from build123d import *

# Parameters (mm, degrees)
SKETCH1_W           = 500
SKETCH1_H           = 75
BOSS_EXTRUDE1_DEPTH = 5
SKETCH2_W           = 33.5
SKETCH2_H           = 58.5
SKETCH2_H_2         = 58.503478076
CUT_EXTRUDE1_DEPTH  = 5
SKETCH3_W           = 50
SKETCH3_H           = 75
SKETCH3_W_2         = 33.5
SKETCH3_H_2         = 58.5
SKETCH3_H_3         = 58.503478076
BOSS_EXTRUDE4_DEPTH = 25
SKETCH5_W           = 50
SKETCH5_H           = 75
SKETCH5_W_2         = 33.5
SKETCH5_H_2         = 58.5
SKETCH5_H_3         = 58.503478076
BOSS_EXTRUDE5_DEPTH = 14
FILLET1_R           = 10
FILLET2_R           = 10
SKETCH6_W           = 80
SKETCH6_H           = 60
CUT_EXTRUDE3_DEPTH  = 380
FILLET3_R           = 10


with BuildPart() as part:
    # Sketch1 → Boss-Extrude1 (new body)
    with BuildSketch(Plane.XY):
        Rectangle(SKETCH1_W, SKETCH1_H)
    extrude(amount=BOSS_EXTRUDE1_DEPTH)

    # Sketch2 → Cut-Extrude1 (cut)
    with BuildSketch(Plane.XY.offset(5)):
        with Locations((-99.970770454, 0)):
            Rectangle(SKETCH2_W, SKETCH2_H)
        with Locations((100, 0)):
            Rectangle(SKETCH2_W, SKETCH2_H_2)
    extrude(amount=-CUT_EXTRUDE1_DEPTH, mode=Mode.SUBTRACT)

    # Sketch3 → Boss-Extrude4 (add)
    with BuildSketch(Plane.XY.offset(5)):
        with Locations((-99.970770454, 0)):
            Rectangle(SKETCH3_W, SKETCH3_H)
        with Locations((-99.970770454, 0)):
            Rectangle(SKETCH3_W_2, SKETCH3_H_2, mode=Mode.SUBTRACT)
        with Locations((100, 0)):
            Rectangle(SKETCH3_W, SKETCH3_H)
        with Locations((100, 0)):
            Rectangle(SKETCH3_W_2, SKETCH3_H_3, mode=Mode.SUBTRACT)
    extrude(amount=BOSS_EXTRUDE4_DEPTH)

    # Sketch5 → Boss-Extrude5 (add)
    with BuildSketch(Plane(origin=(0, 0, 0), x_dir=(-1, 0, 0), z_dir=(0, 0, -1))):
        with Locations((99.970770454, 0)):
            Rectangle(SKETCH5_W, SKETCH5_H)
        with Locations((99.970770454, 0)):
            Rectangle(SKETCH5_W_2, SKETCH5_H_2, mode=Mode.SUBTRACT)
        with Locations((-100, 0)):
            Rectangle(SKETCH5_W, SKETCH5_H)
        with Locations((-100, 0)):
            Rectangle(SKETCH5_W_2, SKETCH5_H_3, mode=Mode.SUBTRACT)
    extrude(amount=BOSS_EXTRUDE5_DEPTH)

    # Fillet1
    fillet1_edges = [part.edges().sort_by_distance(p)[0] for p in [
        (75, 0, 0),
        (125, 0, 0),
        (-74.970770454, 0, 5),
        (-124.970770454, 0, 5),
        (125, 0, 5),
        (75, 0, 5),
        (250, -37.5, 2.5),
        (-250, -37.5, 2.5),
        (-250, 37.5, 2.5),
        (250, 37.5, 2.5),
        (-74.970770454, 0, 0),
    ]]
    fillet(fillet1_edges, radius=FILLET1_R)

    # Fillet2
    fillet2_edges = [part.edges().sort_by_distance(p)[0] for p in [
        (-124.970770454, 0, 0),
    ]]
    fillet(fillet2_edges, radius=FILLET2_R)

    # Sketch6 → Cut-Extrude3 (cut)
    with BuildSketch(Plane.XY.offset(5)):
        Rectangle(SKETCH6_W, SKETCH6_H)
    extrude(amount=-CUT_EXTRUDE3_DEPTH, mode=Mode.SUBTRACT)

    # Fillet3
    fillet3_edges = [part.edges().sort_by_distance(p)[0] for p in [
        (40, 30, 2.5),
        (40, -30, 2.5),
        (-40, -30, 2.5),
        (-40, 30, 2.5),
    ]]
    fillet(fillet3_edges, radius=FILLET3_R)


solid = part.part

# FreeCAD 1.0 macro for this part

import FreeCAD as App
import Part
import Sketcher
from FreeCAD import Vector
Q = App.Units.Quantity


def edges_at(feature, points):
    """Names of the edges that pass closest to the given points."""
    edges = feature.Shape.Edges
    near = lambda p: min(range(len(edges)), key=lambda i: edges[i].distToShape(Part.Vertex(*p))[0])
    return sorted({f"Edge{near(p) + 1}" for p in points})

doc = App.newDocument("Part")
body = doc.addObject("PartDesign::Body", "Body")

# Sketch on XY plane
sketch1 = doc.addObject("Sketcher::SketchObject", "Sketch")
body.addObject(sketch1)
sketch1.AttachmentSupport = (doc.XY_Plane, [""])
sketch1.MapMode = "FlatFace"
sketch1.addGeometry(Part.LineSegment(Vector(-250, 38, 0), Vector(-250, -38, 0)), False)
sketch1.addGeometry(Part.LineSegment(Vector(-250, -38, 0), Vector(250, -38, 0)), False)
sketch1.addGeometry(Part.LineSegment(Vector(250, -38, 0), Vector(250, 38, 0)), False)
sketch1.addGeometry(Part.LineSegment(Vector(250, 38, 0), Vector(-250, 38, 0)), False)
sketch1.addConstraint(Sketcher.Constraint("Coincident", 0, 2, 1, 1))
sketch1.addConstraint(Sketcher.Constraint("Coincident", 1, 2, 2, 1))
sketch1.addConstraint(Sketcher.Constraint("Coincident", 2, 2, 3, 1))
sketch1.addConstraint(Sketcher.Constraint("Coincident", 3, 2, 0, 1))
sketch1.addConstraint(Sketcher.Constraint("Vertical", 0))
sketch1.addConstraint(Sketcher.Constraint("Horizontal", 1))
sketch1.addConstraint(Sketcher.Constraint("Vertical", 2))
sketch1.addConstraint(Sketcher.Constraint("Horizontal", 3))
sketch1.addConstraint(Sketcher.Constraint("Symmetric", 0, 2, 2, 2, -1, 1))
sketch1.addConstraint(Sketcher.Constraint("DistanceX", 1, 1, 1, 2, Q("500 mm")))
sketch1.addConstraint(Sketcher.Constraint("DistanceY", 0, 2, 0, 1, Q("75 mm")))
pad1 = doc.addObject("PartDesign::Pad", "Pad")
body.addObject(pad1)
pad1.Profile = sketch1
pad1.Length = 5

# Sketch on XY plane
sketch2 = doc.addObject("Sketcher::SketchObject", "Sketch001")
body.addObject(sketch2)
sketch2.AttachmentSupport = (doc.XY_Plane, [""])
sketch2.MapMode = "FlatFace"
sketch2.AttachmentOffset = App.Placement(Vector(0, 0, 5), App.Rotation())
sketch2.addGeometry(Part.LineSegment(Vector(-117, 29, 0), Vector(-117, -29, 0)), False)
sketch2.addGeometry(Part.LineSegment(Vector(-117, -29, 0), Vector(-83, -29, 0)), False)
sketch2.addGeometry(Part.LineSegment(Vector(-83, -29, 0), Vector(-83, 29, 0)), False)
sketch2.addGeometry(Part.LineSegment(Vector(-83, 29, 0), Vector(-117, 29, 0)), False)
sketch2.addGeometry(Part.LineSegment(Vector(83, 29, 0), Vector(83, -29, 0)), False)
sketch2.addGeometry(Part.LineSegment(Vector(83, -29, 0), Vector(117, -29, 0)), False)
sketch2.addGeometry(Part.LineSegment(Vector(117, -29, 0), Vector(117, 29, 0)), False)
sketch2.addGeometry(Part.LineSegment(Vector(117, 29, 0), Vector(83, 29, 0)), False)
sketch2.addConstraint(Sketcher.Constraint("Coincident", 0, 2, 1, 1))
sketch2.addConstraint(Sketcher.Constraint("Coincident", 1, 2, 2, 1))
sketch2.addConstraint(Sketcher.Constraint("Coincident", 2, 2, 3, 1))
sketch2.addConstraint(Sketcher.Constraint("Coincident", 3, 2, 0, 1))
sketch2.addConstraint(Sketcher.Constraint("Coincident", 4, 2, 5, 1))
sketch2.addConstraint(Sketcher.Constraint("Coincident", 5, 2, 6, 1))
sketch2.addConstraint(Sketcher.Constraint("Coincident", 6, 2, 7, 1))
sketch2.addConstraint(Sketcher.Constraint("Coincident", 7, 2, 4, 1))
sketch2.addConstraint(Sketcher.Constraint("Vertical", 0))
sketch2.addConstraint(Sketcher.Constraint("Horizontal", 1))
sketch2.addConstraint(Sketcher.Constraint("Vertical", 2))
sketch2.addConstraint(Sketcher.Constraint("Horizontal", 3))
sketch2.addConstraint(Sketcher.Constraint("Vertical", 4))
sketch2.addConstraint(Sketcher.Constraint("Horizontal", 5))
sketch2.addConstraint(Sketcher.Constraint("Vertical", 6))
sketch2.addConstraint(Sketcher.Constraint("Horizontal", 7))
sketch2.addConstraint(Sketcher.Constraint("Equal", 3, 5))
sketch2.addConstraint(Sketcher.Constraint("DistanceX", 1, 1, 1, 2, Q("33.5 mm")))
sketch2.addConstraint(Sketcher.Constraint("DistanceY", 0, 2, 0, 1, Q("58.5 mm")))
sketch2.addConstraint(Sketcher.Constraint("DistanceY", 0, 2, -1, 1, Q("29.25 mm")))
sketch2.addConstraint(Sketcher.Constraint("DistanceX", -1, 1, 4, 2, Q("83.25 mm")))
sketch2.addConstraint(Sketcher.Constraint("DistanceY", 4, 2, 4, 1, Q("58.503478 mm")))
sketch2.addConstraint(Sketcher.Constraint("DistanceX", 0, 2, -1, 1, Q("116.72077 mm")))
sketch2.addConstraint(Sketcher.Constraint("DistanceY", 4, 2, -1, 1, Q("29.251739 mm")))
pocket1 = doc.addObject("PartDesign::Pocket", "Pocket")
body.addObject(pocket1)
pocket1.Profile = sketch2
pocket1.Length = 5

# Sketch on XY plane
sketch3 = doc.addObject("Sketcher::SketchObject", "Sketch002")
body.addObject(sketch3)
sketch3.AttachmentSupport = (doc.XY_Plane, [""])
sketch3.MapMode = "FlatFace"
sketch3.AttachmentOffset = App.Placement(Vector(0, 0, 5), App.Rotation())
sketch3.addGeometry(Part.LineSegment(Vector(-125, 38, 0), Vector(-125, -38, 0)), False)
sketch3.addGeometry(Part.LineSegment(Vector(-125, -38, 0), Vector(-75, -38, 0)), False)
sketch3.addGeometry(Part.LineSegment(Vector(-75, -38, 0), Vector(-75, 38, 0)), False)
sketch3.addGeometry(Part.LineSegment(Vector(-75, 38, 0), Vector(-125, 38, 0)), False)
sketch3.addGeometry(Part.LineSegment(Vector(-83, -29, 0), Vector(-117, -29, 0)), False)
sketch3.addGeometry(Part.LineSegment(Vector(-117, -29, 0), Vector(-117, 29, 0)), False)
sketch3.addGeometry(Part.LineSegment(Vector(-117, 29, 0), Vector(-83, 29, 0)), False)
sketch3.addGeometry(Part.LineSegment(Vector(-83, 29, 0), Vector(-83, -29, 0)), False)
sketch3.addGeometry(Part.LineSegment(Vector(75, 38, 0), Vector(75, -38, 0)), False)
sketch3.addGeometry(Part.LineSegment(Vector(75, -38, 0), Vector(125, -38, 0)), False)
sketch3.addGeometry(Part.LineSegment(Vector(125, -38, 0), Vector(125, 38, 0)), False)
sketch3.addGeometry(Part.LineSegment(Vector(125, 38, 0), Vector(75, 38, 0)), False)
sketch3.addGeometry(Part.LineSegment(Vector(117, -29, 0), Vector(83, -29, 0)), False)
sketch3.addGeometry(Part.LineSegment(Vector(83, -29, 0), Vector(83, 29, 0)), False)
sketch3.addGeometry(Part.LineSegment(Vector(83, 29, 0), Vector(117, 29, 0)), False)
sketch3.addGeometry(Part.LineSegment(Vector(117, 29, 0), Vector(117, -29, 0)), False)
sketch3.addConstraint(Sketcher.Constraint("Coincident", 0, 2, 1, 1))
sketch3.addConstraint(Sketcher.Constraint("Coincident", 1, 2, 2, 1))
sketch3.addConstraint(Sketcher.Constraint("Coincident", 2, 2, 3, 1))
sketch3.addConstraint(Sketcher.Constraint("Coincident", 3, 2, 0, 1))
sketch3.addConstraint(Sketcher.Constraint("Coincident", 4, 2, 5, 1))
sketch3.addConstraint(Sketcher.Constraint("Coincident", 5, 2, 6, 1))
sketch3.addConstraint(Sketcher.Constraint("Coincident", 6, 2, 7, 1))
sketch3.addConstraint(Sketcher.Constraint("Coincident", 7, 2, 4, 1))
sketch3.addConstraint(Sketcher.Constraint("Coincident", 8, 2, 9, 1))
sketch3.addConstraint(Sketcher.Constraint("Coincident", 9, 2, 10, 1))
sketch3.addConstraint(Sketcher.Constraint("Coincident", 10, 2, 11, 1))
sketch3.addConstraint(Sketcher.Constraint("Coincident", 11, 2, 8, 1))
sketch3.addConstraint(Sketcher.Constraint("Coincident", 12, 2, 13, 1))
sketch3.addConstraint(Sketcher.Constraint("Coincident", 13, 2, 14, 1))
sketch3.addConstraint(Sketcher.Constraint("Coincident", 14, 2, 15, 1))
sketch3.addConstraint(Sketcher.Constraint("Coincident", 15, 2, 12, 1))
sketch3.addConstraint(Sketcher.Constraint("Vertical", 0))
sketch3.addConstraint(Sketcher.Constraint("Horizontal", 1))
sketch3.addConstraint(Sketcher.Constraint("Vertical", 2))
sketch3.addConstraint(Sketcher.Constraint("Horizontal", 3))
sketch3.addConstraint(Sketcher.Constraint("Horizontal", 4))
sketch3.addConstraint(Sketcher.Constraint("Vertical", 5))
sketch3.addConstraint(Sketcher.Constraint("Horizontal", 6))
sketch3.addConstraint(Sketcher.Constraint("Vertical", 7))
sketch3.addConstraint(Sketcher.Constraint("Vertical", 8))
sketch3.addConstraint(Sketcher.Constraint("Horizontal", 9))
sketch3.addConstraint(Sketcher.Constraint("Vertical", 10))
sketch3.addConstraint(Sketcher.Constraint("Horizontal", 11))
sketch3.addConstraint(Sketcher.Constraint("Horizontal", 12))
sketch3.addConstraint(Sketcher.Constraint("Vertical", 13))
sketch3.addConstraint(Sketcher.Constraint("Horizontal", 14))
sketch3.addConstraint(Sketcher.Constraint("Vertical", 15))
sketch3.addConstraint(Sketcher.Constraint("Horizontal", 1, 2, 8, 2))
sketch3.addConstraint(Sketcher.Constraint("Horizontal", 3, 2, 10, 2))
sketch3.addConstraint(Sketcher.Constraint("Equal", 3, 9))
sketch3.addConstraint(Sketcher.Constraint("Equal", 6, 12))
sketch3.addConstraint(Sketcher.Constraint("DistanceX", 1, 1, 1, 2, Q("50 mm")))
sketch3.addConstraint(Sketcher.Constraint("DistanceY", 0, 2, 0, 1, Q("75 mm")))
sketch3.addConstraint(Sketcher.Constraint("DistanceX", 4, 2, 4, 1, Q("33.5 mm")))
sketch3.addConstraint(Sketcher.Constraint("DistanceY", 5, 1, 5, 2, Q("58.5 mm")))
sketch3.addConstraint(Sketcher.Constraint("DistanceX", -1, 1, 8, 2, Q("75 mm")))
sketch3.addConstraint(Sketcher.Constraint("DistanceY", 0, 2, -1, 1, Q("37.5 mm")))
sketch3.addConstraint(Sketcher.Constraint("DistanceY", 4, 2, -1, 1, Q("29.25 mm")))
sketch3.addConstraint(Sketcher.Constraint("DistanceX", -1, 1, 12, 2, Q("83.25 mm")))
sketch3.addConstraint(Sketcher.Constraint("DistanceX", 0, 2, 4, 2, Q("8.25 mm")))
sketch3.addConstraint(Sketcher.Constraint("DistanceY", 13, 1, 13, 2, Q("58.503478 mm")))
sketch3.addConstraint(Sketcher.Constraint("DistanceX", 0, 2, -1, 1, Q("124.97077 mm")))
sketch3.addConstraint(Sketcher.Constraint("DistanceY", 12, 2, -1, 1, Q("29.251739 mm")))
pad2 = doc.addObject("PartDesign::Pad", "Pad001")
body.addObject(pad2)
pad2.Profile = sketch3
pad2.Length = 25

# Sketch on XY plane
sketch4 = doc.addObject("Sketcher::SketchObject", "Sketch003")
body.addObject(sketch4)
sketch4.AttachmentSupport = (doc.XY_Plane, [""])
sketch4.MapMode = "FlatFace"
sketch4.addGeometry(Part.LineSegment(Vector(-75, 38, 0), Vector(-75, -38, 0)), False)
sketch4.addGeometry(Part.LineSegment(Vector(-75, -38, 0), Vector(-125, -38, 0)), False)
sketch4.addGeometry(Part.LineSegment(Vector(-125, -38, 0), Vector(-125, 38, 0)), False)
sketch4.addGeometry(Part.LineSegment(Vector(-125, 38, 0), Vector(-75, 38, 0)), False)
sketch4.addGeometry(Part.LineSegment(Vector(-117, -29, 0), Vector(-83, -29, 0)), False)
sketch4.addGeometry(Part.LineSegment(Vector(-83, -29, 0), Vector(-83, 29, 0)), False)
sketch4.addGeometry(Part.LineSegment(Vector(-83, 29, 0), Vector(-117, 29, 0)), False)
sketch4.addGeometry(Part.LineSegment(Vector(-117, 29, 0), Vector(-117, -29, 0)), False)
sketch4.addGeometry(Part.LineSegment(Vector(125, 38, 0), Vector(125, -38, 0)), False)
sketch4.addGeometry(Part.LineSegment(Vector(125, -38, 0), Vector(75, -38, 0)), False)
sketch4.addGeometry(Part.LineSegment(Vector(75, -38, 0), Vector(75, 38, 0)), False)
sketch4.addGeometry(Part.LineSegment(Vector(75, 38, 0), Vector(125, 38, 0)), False)
sketch4.addGeometry(Part.LineSegment(Vector(83, -29, 0), Vector(117, -29, 0)), False)
sketch4.addGeometry(Part.LineSegment(Vector(117, -29, 0), Vector(117, 29, 0)), False)
sketch4.addGeometry(Part.LineSegment(Vector(117, 29, 0), Vector(83, 29, 0)), False)
sketch4.addGeometry(Part.LineSegment(Vector(83, 29, 0), Vector(83, -29, 0)), False)
sketch4.addConstraint(Sketcher.Constraint("Coincident", 0, 2, 1, 1))
sketch4.addConstraint(Sketcher.Constraint("Coincident", 1, 2, 2, 1))
sketch4.addConstraint(Sketcher.Constraint("Coincident", 2, 2, 3, 1))
sketch4.addConstraint(Sketcher.Constraint("Coincident", 3, 2, 0, 1))
sketch4.addConstraint(Sketcher.Constraint("Coincident", 4, 2, 5, 1))
sketch4.addConstraint(Sketcher.Constraint("Coincident", 5, 2, 6, 1))
sketch4.addConstraint(Sketcher.Constraint("Coincident", 6, 2, 7, 1))
sketch4.addConstraint(Sketcher.Constraint("Coincident", 7, 2, 4, 1))
sketch4.addConstraint(Sketcher.Constraint("Coincident", 8, 2, 9, 1))
sketch4.addConstraint(Sketcher.Constraint("Coincident", 9, 2, 10, 1))
sketch4.addConstraint(Sketcher.Constraint("Coincident", 10, 2, 11, 1))
sketch4.addConstraint(Sketcher.Constraint("Coincident", 11, 2, 8, 1))
sketch4.addConstraint(Sketcher.Constraint("Coincident", 12, 2, 13, 1))
sketch4.addConstraint(Sketcher.Constraint("Coincident", 13, 2, 14, 1))
sketch4.addConstraint(Sketcher.Constraint("Coincident", 14, 2, 15, 1))
sketch4.addConstraint(Sketcher.Constraint("Coincident", 15, 2, 12, 1))
sketch4.addConstraint(Sketcher.Constraint("Vertical", 0))
sketch4.addConstraint(Sketcher.Constraint("Horizontal", 1))
sketch4.addConstraint(Sketcher.Constraint("Vertical", 2))
sketch4.addConstraint(Sketcher.Constraint("Horizontal", 3))
sketch4.addConstraint(Sketcher.Constraint("Horizontal", 4))
sketch4.addConstraint(Sketcher.Constraint("Vertical", 5))
sketch4.addConstraint(Sketcher.Constraint("Horizontal", 6))
sketch4.addConstraint(Sketcher.Constraint("Vertical", 7))
sketch4.addConstraint(Sketcher.Constraint("Vertical", 8))
sketch4.addConstraint(Sketcher.Constraint("Horizontal", 9))
sketch4.addConstraint(Sketcher.Constraint("Vertical", 10))
sketch4.addConstraint(Sketcher.Constraint("Horizontal", 11))
sketch4.addConstraint(Sketcher.Constraint("Horizontal", 12))
sketch4.addConstraint(Sketcher.Constraint("Vertical", 13))
sketch4.addConstraint(Sketcher.Constraint("Horizontal", 14))
sketch4.addConstraint(Sketcher.Constraint("Vertical", 15))
sketch4.addConstraint(Sketcher.Constraint("Horizontal", 1, 2, 8, 2))
sketch4.addConstraint(Sketcher.Constraint("Horizontal", 3, 2, 10, 2))
sketch4.addConstraint(Sketcher.Constraint("Equal", 3, 9))
sketch4.addConstraint(Sketcher.Constraint("Equal", 6, 12))
sketch4.addConstraint(Sketcher.Constraint("DistanceX", 1, 2, 1, 1, Q("50 mm")))
sketch4.addConstraint(Sketcher.Constraint("DistanceY", 0, 2, 0, 1, Q("75 mm")))
sketch4.addConstraint(Sketcher.Constraint("DistanceX", 4, 1, 4, 2, Q("33.5 mm")))
sketch4.addConstraint(Sketcher.Constraint("DistanceY", 5, 1, 5, 2, Q("58.5 mm")))
sketch4.addConstraint(Sketcher.Constraint("DistanceX", -1, 1, 8, 2, Q("125 mm")))
sketch4.addConstraint(Sketcher.Constraint("DistanceY", 0, 2, -1, 1, Q("37.5 mm")))
sketch4.addConstraint(Sketcher.Constraint("DistanceY", 4, 2, -1, 1, Q("29.25 mm")))
sketch4.addConstraint(Sketcher.Constraint("DistanceX", -1, 1, 12, 2, Q("116.75 mm")))
sketch4.addConstraint(Sketcher.Constraint("DistanceX", 4, 2, 0, 2, Q("8.25 mm")))
sketch4.addConstraint(Sketcher.Constraint("DistanceY", 13, 1, 13, 2, Q("58.503478 mm")))
sketch4.addConstraint(Sketcher.Constraint("DistanceX", 0, 2, -1, 1, Q("74.97077 mm")))
sketch4.addConstraint(Sketcher.Constraint("DistanceY", 12, 2, -1, 1, Q("29.251739 mm")))
pad3 = doc.addObject("PartDesign::Pad", "Pad002")
body.addObject(pad3)
pad3.Profile = sketch4
pad3.Length = 14
pad3.Reversed = True
doc.recompute()

fillet = doc.addObject("PartDesign::Fillet", "Fillet")
body.addObject(fillet)
fillet.Base = (pad3, edges_at(pad3, [
    (75, 0, 0),
    (125, 0, 0),
    (-74.971, 0, 5),
    (-124.971, 0, 5),
    (125, 0, 5),
    (75, 0, 5),
    (250, -37.5, 2.5),
    (-250, -37.5, 2.5),
    (-250, 37.5, 2.5),
    (250, 37.5, 2.5),
    (-74.971, 0, 0),
]))
fillet.Radius = 10
doc.recompute()

fillet2 = doc.addObject("PartDesign::Fillet", "Fillet001")
body.addObject(fillet2)
fillet2.Base = (fillet, edges_at(fillet, [(-124.971, 0, 0)]))
fillet2.Radius = 10

# Sketch on XY plane
sketch5 = doc.addObject("Sketcher::SketchObject", "Sketch004")
body.addObject(sketch5)
sketch5.AttachmentSupport = (doc.XY_Plane, [""])
sketch5.MapMode = "FlatFace"
sketch5.AttachmentOffset = App.Placement(Vector(0, 0, 5), App.Rotation())
sketch5.addGeometry(Part.LineSegment(Vector(-40, 30, 0), Vector(-40, -30, 0)), False)
sketch5.addGeometry(Part.LineSegment(Vector(-40, -30, 0), Vector(40, -30, 0)), False)
sketch5.addGeometry(Part.LineSegment(Vector(40, -30, 0), Vector(40, 30, 0)), False)
sketch5.addGeometry(Part.LineSegment(Vector(40, 30, 0), Vector(-40, 30, 0)), False)
sketch5.addConstraint(Sketcher.Constraint("Coincident", 0, 2, 1, 1))
sketch5.addConstraint(Sketcher.Constraint("Coincident", 1, 2, 2, 1))
sketch5.addConstraint(Sketcher.Constraint("Coincident", 2, 2, 3, 1))
sketch5.addConstraint(Sketcher.Constraint("Coincident", 3, 2, 0, 1))
sketch5.addConstraint(Sketcher.Constraint("Vertical", 0))
sketch5.addConstraint(Sketcher.Constraint("Horizontal", 1))
sketch5.addConstraint(Sketcher.Constraint("Vertical", 2))
sketch5.addConstraint(Sketcher.Constraint("Horizontal", 3))
sketch5.addConstraint(Sketcher.Constraint("Symmetric", 0, 2, 2, 2, -1, 1))
sketch5.addConstraint(Sketcher.Constraint("DistanceX", 1, 1, 1, 2, Q("80 mm")))
sketch5.addConstraint(Sketcher.Constraint("DistanceY", 0, 2, 0, 1, Q("60 mm")))
pocket2 = doc.addObject("PartDesign::Pocket", "Pocket001")
body.addObject(pocket2)
pocket2.Profile = sketch5
pocket2.Length = 380
doc.recompute()

fillet3 = doc.addObject("PartDesign::Fillet", "Fillet002")
body.addObject(fillet3)
fillet3.Base = (pocket2, edges_at(pocket2, [
    (40, 30, 2.5),
    (40, -30, 2.5),
    (-40, -30, 2.5),
    (-40, 30, 2.5),
]))
fillet3.Radius = 10

doc.recompute()
